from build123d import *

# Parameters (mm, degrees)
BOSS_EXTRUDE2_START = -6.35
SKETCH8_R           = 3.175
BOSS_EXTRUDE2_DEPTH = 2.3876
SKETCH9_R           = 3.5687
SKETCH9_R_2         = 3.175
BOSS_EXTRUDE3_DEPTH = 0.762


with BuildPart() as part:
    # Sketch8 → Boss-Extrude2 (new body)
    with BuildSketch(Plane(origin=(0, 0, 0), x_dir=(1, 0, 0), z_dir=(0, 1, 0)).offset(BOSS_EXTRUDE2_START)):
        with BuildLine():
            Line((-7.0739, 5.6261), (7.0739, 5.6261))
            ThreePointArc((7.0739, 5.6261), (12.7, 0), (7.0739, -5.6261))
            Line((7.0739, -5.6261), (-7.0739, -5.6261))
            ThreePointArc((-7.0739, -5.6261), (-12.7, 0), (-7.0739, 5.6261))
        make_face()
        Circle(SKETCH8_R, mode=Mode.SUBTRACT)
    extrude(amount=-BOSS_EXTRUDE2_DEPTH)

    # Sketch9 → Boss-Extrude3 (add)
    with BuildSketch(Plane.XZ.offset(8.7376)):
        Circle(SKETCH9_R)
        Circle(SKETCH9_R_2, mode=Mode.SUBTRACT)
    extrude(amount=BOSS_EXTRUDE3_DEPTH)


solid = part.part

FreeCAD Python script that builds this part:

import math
import FreeCAD as App
import Part
import Sketcher
from FreeCAD import Vector
Q = App.Units.Quantity

doc = App.newDocument("Part")
body = doc.addObject("PartDesign::Body", "Body")

sketch1 = doc.addObject("Sketcher::SketchObject", "Sketch")
body.addObject(sketch1)
sketch1.AttachmentSupport = (doc.XZ_Plane, [""])
sketch1.MapMode = "FlatFace"
sketch1.AttachmentOffset = App.Placement(Vector(0, 0, 0.25 * 25.4), App.Rotation())
sketch1.addGeometry([
    Part.LineSegment(Vector(7.0739, -5.6261, 0), Vector(-7.0739, -5.6261, 0)),
    Part.ArcOfCircle(Part.Circle(Vector(-7.0739, 0, 0), Vector(0, 0, 1), 5.6261), math.radians(90), math.radians(270)),
    Part.LineSegment(Vector(-7.0739, 5.6261, 0), Vector(7.0739, 5.6261, 0)),
    Part.ArcOfCircle(Part.Circle(Vector(7.0739, 0, 0), Vector(0, 0, 1), 5.6261), math.radians(-90), math.radians(90)),
    Part.Circle(Vector(0, 0, 0), Vector(0, 0, 1), 3.175),
], False)
sketch1.addConstraint([
    Sketcher.Constraint("Tangent", 0, 2, 1, 2),
    Sketcher.Constraint("Tangent", 1, 1, 2, 1),
    Sketcher.Constraint("Tangent", 2, 2, 3, 2),
    Sketcher.Constraint("Tangent", 3, 1, 0, 1),
    Sketcher.Constraint("Horizontal", 0),
    Sketcher.Constraint("Horizontal", 2),
    Sketcher.Constraint("Coincident", 4, 3, -1, 1),
    Sketcher.Constraint("Symmetric", 1, 3, 3, 3, -1, 1),
    Sketcher.Constraint("Diameter", 4, Q("0.25 in")),
    Sketcher.Constraint("Radius", 1, Q("0.2215 in")),
    Sketcher.Constraint("DistanceX", 0, 2, 0, 1, Q("0.557 in")),
])
pad1 = doc.addObject("PartDesign::Pad", "Pad")
body.addObject(pad1)
pad1.Profile = sketch1
pad1.Length = Q("0.094 in")

sketch2 = doc.addObject("Sketcher::SketchObject", "Sketch001")
body.addObject(sketch2)
sketch2.AttachmentSupport = (doc.XZ_Plane, [""])
sketch2.MapMode = "FlatFace"
sketch2.AttachmentOffset = App.Placement(Vector(0, 0, 0.344 * 25.4), App.Rotation())
sketch2.addGeometry([
    Part.Circle(Vector(0, 0, 0), Vector(0, 0, 1), 3.5687),
    Part.Circle(Vector(0, 0, 0), Vector(0, 0, 1), 3.175),
], False)
sketch2.addConstraint([
    Sketcher.Constraint("Coincident", 0, 3, -1, 1),
    Sketcher.Constraint("Coincident", 1, 3, -1, 1),
    Sketcher.Constraint("Diameter", 1, Q("0.25 in")),
    Sketcher.Constraint("Diameter", 0, Q("0.281 in")),
])
pad2 = doc.addObject("PartDesign::Pad", "Pad001")
body.addObject(pad2)
pad2.Profile = sketch2
pad2.Length = Q("0.03 in")

doc.recompute()
